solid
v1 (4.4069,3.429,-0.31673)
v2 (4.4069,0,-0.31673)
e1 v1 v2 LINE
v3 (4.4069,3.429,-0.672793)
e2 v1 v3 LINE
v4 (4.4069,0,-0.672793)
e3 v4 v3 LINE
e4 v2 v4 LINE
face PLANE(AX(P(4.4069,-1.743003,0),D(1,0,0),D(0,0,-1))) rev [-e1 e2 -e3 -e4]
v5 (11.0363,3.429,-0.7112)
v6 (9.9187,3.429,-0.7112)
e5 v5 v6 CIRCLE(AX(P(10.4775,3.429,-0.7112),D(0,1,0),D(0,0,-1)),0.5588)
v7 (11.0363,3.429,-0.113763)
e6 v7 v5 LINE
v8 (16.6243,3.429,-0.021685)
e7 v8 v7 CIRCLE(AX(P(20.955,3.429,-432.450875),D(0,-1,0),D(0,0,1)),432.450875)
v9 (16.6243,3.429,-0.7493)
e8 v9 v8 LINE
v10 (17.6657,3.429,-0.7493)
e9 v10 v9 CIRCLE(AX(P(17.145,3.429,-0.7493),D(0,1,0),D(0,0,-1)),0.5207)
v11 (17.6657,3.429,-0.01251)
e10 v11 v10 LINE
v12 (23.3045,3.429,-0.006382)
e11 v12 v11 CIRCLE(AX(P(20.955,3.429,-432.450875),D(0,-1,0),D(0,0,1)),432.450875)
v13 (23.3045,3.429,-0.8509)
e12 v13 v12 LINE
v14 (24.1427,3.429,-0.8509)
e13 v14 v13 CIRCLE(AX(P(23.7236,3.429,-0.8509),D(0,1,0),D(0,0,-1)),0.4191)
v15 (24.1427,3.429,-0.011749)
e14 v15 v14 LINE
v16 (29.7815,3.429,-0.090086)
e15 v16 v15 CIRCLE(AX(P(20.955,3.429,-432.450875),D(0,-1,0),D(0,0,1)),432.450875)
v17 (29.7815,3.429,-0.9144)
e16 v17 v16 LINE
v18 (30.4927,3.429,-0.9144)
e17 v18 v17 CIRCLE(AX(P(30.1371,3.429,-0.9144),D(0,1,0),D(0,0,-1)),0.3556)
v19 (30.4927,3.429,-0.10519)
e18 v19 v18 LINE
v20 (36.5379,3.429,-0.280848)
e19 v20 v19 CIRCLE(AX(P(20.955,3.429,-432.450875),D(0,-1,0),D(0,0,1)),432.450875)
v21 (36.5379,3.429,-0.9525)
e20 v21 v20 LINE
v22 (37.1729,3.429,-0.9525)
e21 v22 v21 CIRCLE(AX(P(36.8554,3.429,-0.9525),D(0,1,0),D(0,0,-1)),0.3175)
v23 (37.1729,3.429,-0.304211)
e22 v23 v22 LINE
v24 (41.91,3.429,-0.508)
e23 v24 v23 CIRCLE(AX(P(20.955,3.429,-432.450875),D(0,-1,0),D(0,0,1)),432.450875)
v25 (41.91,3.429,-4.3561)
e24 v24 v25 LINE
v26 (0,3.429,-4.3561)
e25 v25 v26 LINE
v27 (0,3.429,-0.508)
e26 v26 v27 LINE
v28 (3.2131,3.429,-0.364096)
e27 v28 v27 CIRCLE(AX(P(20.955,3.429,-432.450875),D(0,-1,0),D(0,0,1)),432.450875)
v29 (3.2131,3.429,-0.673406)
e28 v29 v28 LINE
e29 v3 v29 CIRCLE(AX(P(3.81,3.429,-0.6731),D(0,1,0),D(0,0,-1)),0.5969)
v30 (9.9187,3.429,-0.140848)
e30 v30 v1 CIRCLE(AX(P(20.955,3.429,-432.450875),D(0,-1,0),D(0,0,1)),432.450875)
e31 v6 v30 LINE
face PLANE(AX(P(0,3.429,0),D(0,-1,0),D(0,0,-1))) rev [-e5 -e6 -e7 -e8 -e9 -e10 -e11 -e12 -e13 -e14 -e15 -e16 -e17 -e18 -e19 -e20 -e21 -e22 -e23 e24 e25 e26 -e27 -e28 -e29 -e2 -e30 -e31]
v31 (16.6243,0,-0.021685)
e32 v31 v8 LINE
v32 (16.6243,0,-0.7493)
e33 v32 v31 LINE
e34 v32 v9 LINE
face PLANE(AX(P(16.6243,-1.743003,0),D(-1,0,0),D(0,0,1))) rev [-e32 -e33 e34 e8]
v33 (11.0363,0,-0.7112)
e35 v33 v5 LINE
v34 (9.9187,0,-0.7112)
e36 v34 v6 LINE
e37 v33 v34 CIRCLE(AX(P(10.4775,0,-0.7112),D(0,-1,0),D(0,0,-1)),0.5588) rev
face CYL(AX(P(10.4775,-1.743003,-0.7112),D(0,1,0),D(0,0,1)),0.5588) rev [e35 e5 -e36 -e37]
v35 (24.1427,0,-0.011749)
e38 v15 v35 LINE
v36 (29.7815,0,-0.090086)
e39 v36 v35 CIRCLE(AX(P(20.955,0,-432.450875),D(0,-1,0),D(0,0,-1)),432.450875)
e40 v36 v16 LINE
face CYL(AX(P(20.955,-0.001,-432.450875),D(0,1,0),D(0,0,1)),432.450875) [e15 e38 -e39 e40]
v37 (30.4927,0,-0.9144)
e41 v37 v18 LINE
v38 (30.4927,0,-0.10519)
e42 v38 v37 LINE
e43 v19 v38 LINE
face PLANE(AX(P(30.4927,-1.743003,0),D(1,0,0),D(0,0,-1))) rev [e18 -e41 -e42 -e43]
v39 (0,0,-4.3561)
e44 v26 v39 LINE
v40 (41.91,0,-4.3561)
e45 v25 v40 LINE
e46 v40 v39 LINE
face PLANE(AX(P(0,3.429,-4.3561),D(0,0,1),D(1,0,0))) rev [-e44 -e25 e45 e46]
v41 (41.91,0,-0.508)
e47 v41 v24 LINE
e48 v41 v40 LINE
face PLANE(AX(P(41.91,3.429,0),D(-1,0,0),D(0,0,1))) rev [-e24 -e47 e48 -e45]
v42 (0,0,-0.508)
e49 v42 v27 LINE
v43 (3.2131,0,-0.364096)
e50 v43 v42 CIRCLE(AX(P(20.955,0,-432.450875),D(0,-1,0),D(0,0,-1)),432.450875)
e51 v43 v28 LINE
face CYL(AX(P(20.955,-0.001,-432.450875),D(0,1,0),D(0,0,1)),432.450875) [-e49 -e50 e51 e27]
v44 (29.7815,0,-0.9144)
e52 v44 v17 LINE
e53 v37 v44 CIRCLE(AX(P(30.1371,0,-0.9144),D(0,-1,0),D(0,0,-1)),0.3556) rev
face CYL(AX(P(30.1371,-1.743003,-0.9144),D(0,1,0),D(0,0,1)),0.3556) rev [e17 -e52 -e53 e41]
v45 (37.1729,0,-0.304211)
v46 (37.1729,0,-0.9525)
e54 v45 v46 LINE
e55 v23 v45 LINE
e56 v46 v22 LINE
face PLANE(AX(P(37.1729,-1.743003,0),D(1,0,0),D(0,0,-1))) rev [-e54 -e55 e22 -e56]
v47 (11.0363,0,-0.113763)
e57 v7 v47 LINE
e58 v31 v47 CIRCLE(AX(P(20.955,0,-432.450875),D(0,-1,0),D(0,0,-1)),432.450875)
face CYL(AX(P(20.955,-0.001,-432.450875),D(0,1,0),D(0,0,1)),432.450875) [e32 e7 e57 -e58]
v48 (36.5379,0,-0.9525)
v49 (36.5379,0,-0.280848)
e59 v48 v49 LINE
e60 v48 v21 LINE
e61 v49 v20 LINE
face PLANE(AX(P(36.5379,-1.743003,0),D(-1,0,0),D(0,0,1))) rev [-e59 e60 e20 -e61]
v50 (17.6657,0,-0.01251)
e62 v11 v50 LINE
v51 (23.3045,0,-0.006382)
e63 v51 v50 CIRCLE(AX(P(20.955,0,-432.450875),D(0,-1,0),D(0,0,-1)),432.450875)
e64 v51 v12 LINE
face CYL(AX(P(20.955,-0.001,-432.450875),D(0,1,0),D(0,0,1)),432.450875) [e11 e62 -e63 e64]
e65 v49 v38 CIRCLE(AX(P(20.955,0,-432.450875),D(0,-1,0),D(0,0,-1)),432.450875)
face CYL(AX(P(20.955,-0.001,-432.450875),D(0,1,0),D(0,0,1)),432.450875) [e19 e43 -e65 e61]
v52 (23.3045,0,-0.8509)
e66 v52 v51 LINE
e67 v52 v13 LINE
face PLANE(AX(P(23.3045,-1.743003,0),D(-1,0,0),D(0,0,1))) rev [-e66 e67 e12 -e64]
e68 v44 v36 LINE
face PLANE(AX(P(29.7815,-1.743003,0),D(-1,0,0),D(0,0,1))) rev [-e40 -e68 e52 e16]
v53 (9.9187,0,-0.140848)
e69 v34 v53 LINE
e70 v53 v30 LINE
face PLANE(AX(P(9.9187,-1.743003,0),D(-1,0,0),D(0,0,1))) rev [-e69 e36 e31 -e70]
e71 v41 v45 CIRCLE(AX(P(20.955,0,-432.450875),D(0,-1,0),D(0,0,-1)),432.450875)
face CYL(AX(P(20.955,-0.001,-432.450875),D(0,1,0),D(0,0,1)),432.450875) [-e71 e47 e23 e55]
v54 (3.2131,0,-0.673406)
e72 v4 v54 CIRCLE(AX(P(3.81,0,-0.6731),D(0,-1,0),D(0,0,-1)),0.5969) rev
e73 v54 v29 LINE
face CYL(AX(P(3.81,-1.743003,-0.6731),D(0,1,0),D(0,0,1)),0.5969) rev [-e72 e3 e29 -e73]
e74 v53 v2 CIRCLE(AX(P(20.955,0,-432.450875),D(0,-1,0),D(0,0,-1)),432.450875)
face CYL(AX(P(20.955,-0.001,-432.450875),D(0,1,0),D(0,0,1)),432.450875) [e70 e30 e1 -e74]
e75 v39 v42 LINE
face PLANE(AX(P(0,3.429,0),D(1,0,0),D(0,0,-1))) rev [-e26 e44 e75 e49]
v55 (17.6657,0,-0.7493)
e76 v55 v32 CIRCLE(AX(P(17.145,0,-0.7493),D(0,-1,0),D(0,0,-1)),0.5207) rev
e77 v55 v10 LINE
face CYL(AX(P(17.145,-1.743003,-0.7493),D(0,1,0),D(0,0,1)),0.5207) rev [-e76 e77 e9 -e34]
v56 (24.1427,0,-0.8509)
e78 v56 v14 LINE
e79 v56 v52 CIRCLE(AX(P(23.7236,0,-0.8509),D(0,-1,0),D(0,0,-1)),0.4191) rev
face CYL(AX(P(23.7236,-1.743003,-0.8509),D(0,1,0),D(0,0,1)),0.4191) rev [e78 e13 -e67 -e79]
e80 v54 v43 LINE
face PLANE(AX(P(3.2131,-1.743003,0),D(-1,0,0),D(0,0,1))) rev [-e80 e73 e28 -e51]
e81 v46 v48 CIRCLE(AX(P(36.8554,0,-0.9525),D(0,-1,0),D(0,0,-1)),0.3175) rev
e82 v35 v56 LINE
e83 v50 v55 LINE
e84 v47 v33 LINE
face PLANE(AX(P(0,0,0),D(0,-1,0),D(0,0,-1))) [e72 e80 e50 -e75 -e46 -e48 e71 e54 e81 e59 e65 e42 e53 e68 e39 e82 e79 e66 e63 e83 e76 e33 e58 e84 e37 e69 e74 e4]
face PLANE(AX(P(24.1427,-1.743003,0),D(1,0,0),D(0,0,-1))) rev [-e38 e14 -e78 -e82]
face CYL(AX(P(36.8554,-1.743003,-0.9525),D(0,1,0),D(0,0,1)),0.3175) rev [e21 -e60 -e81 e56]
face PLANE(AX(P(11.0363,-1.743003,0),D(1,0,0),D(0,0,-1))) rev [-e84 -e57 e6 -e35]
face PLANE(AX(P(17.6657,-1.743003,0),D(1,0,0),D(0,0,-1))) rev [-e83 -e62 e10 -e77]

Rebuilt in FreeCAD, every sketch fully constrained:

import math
import FreeCAD as App
import Part
import Sketcher
from FreeCAD import Vector
Q = App.Units.Quantity

doc = App.newDocument("Part")
body = doc.addObject("PartDesign::Body", "Body")

# Sketch on XZ plane
sketch1 = body.newObject("Sketcher::SketchObject", "Sketch")
sketch1.AttachmentSupport = (doc.getObject("XZ_Plane"), [""])
sketch1.MapMode = "FlatFace"
sketch1.addGeometry(Part.LineSegment(Vector(0, -4.4, 0), Vector(0, 0, 0)), False)
sketch1.addGeometry(Part.LineSegment(Vector(0, 0, 0), Vector(41.9, 0, 0)), False)
sketch1.addGeometry(Part.LineSegment(Vector(41.9, 0, 0), Vector(41.9, -4.4, 0)), False)
sketch1.addGeometry(Part.LineSegment(Vector(41.9, -4.4, 0), Vector(0, -4.4, 0)), False)
sketch1.addConstraint(Sketcher.Constraint("Coincident", 0, 2, 1, 1))
sketch1.addConstraint(Sketcher.Constraint("Coincident", 1, 2, 2, 1))
sketch1.addConstraint(Sketcher.Constraint("Coincident", 2, 2, 3, 1))
sketch1.addConstraint(Sketcher.Constraint("Coincident", 3, 2, 0, 1))
sketch1.addConstraint(Sketcher.Constraint("Vertical", 0))
sketch1.addConstraint(Sketcher.Constraint("Horizontal", 1))
sketch1.addConstraint(Sketcher.Constraint("Vertical", 2))
sketch1.addConstraint(Sketcher.Constraint("Horizontal", 3))
sketch1.addConstraint(Sketcher.Constraint("Coincident", 0, 2, -1, 1))
sketch1.addConstraint(Sketcher.Constraint("DistanceX", 1, 1, 1, 2, Q("1.65 in")))
sketch1.addConstraint(Sketcher.Constraint("DistanceY", 0, 1, 0, 2, Q("0.1715 in")))
pad1 = body.newObject("PartDesign::Pad", "Pad")
pad1.Profile = sketch1
pad1.Length = Q("0.135 in")
pad1.Reversed = True

# Sketch on XZ plane
sketch2 = body.newObject("Sketcher::SketchObject", "Sketch001")
sketch2.AttachmentSupport = (doc.getObject("XZ_Plane"), [""])
sketch2.MapMode = "FlatFace"
sketch2.AttachmentOffset = App.Placement(Vector(0, 0, -0.135 * 25.4), App.Rotation())
sketch2.addGeometry(Part.LineSegment(Vector(3.21, -0.67, 0), Vector(3.21, 0, 0)), False)
sketch2.addGeometry(Part.LineSegment(Vector(3.21, 0, 0), Vector(4.41, 0, 0)), False)
sketch2.addGeometry(Part.LineSegment(Vector(4.41, 0, 0), Vector(4.41, -0.67, 0)), False)
sketch2.addGeometry(Part.ArcOfCircle(Part.Circle(Vector(3.81, -0.67, 0), Vector(0, 0, 1), 0.6), math.radians(-180), math.radians(0)), False)
sketch2.addGeometry(Part.LineSegment(Vector(9.92, -0.71, 0), Vector(9.92, 0, 0)), False)
sketch2.addGeometry(Part.LineSegment(Vector(9.92, 0, 0), Vector(11.04, 0, 0)), False)
sketch2.addGeometry(Part.LineSegment(Vector(11.04, 0, 0), Vector(11.04, -0.71, 0)), False)
sketch2.addGeometry(Part.ArcOfCircle(Part.Circle(Vector(10.48, -0.71, 0), Vector(0, 0, 1), 0.56), math.radians(180), math.radians(360)), False)
sketch2.addGeometry(Part.LineSegment(Vector(16.62, -0.75, 0), Vector(16.62, 0, 0)), False)
sketch2.addGeometry(Part.LineSegment(Vector(16.62, 0, 0), Vector(17.67, 0, 0)), False)
sketch2.addGeometry(Part.LineSegment(Vector(17.67, 0, 0), Vector(17.67, -0.75, 0)), False)
sketch2.addGeometry(Part.ArcOfCircle(Part.Circle(Vector(17.15, -0.75, 0), Vector(0, 0, 1), 0.52), math.radians(180), math.radians(360)), False)
sketch2.addGeometry(Part.LineSegment(Vector(23.3, -0.85, 0), Vector(23.3, 0, 0)), False)
sketch2.addGeometry(Part.LineSegment(Vector(23.3, 0, 0), Vector(24.14, 0, 0)), False)
sketch2.addGeometry(Part.LineSegment(Vector(24.14, 0, 0), Vector(24.14, -0.85, 0)), False)
sketch2.addGeometry(Part.ArcOfCircle(Part.Circle(Vector(23.72, -0.85, 0), Vector(0, 0, 1), 0.42), math.radians(180), math.radians(360)), False)
sketch2.addGeometry(Part.LineSegment(Vector(29.78, -0.91, 0), Vector(29.78, 0, 0)), False)
sketch2.addGeometry(Part.LineSegment(Vector(29.78, 0, 0), Vector(30.49, 0, 0)), False)
sketch2.addGeometry(Part.LineSegment(Vector(30.49, 0, 0), Vector(30.49, -0.91, 0)), False)
sketch2.addGeometry(Part.ArcOfCircle(Part.Circle(Vector(30.14, -0.91, 0), Vector(0, 0, 1), 0.36), math.radians(180), math.radians(360)), False)
sketch2.addGeometry(Part.LineSegment(Vector(36.54, -0.95, 0), Vector(36.54, 0, 0)), False)
sketch2.addGeometry(Part.LineSegment(Vector(36.54, 0, 0), Vector(37.17, 0, 0)), False)
sketch2.addGeometry(Part.LineSegment(Vector(37.17, 0, 0), Vector(37.17, -0.95, 0)), False)
sketch2.addGeometry(Part.ArcOfCircle(Part.Circle(Vector(36.86, -0.95, 0), Vector(0, 0, 1), 0.32), math.radians(180), math.radians(360)), False)
sketch2.addConstraint(Sketcher.Constraint("Coincident", 0, 2, 1, 1))
sketch2.addConstraint(Sketcher.Constraint("Coincident", 1, 2, 2, 1))
sketch2.addConstraint(Sketcher.Constraint("Coincident", 2, 2, 3, 2))
sketch2.addConstraint(Sketcher.Constraint("Coincident", 3, 1, 0, 1))
sketch2.addConstraint(Sketcher.Constraint("Coincident", 4, 2, 5, 1))
sketch2.addConstraint(Sketcher.Constraint("Coincident", 5, 2, 6, 1))
sketch2.addConstraint(Sketcher.Constraint("Tangent", 6, 2, 7, 2))
sketch2.addConstraint(Sketcher.Constraint("Tangent", 7, 1, 4, 1))
sketch2.addConstraint(Sketcher.Constraint("Coincident", 8, 2, 9, 1))
sketch2.addConstraint(Sketcher.Constraint("Coincident", 9, 2, 10, 1))
sketch2.addConstraint(Sketcher.Constraint("Tangent", 10, 2, 11, 2))
sketch2.addConstraint(Sketcher.Constraint("Tangent", 11, 1, 8, 1))
sketch2.addConstraint(Sketcher.Constraint("Coincident", 12, 2, 13, 1))
sketch2.addConstraint(Sketcher.Constraint("Coincident", 13, 2, 14, 1))
sketch2.addConstraint(Sketcher.Constraint("Tangent", 14, 2, 15, 2))
sketch2.addConstraint(Sketcher.Constraint("Tangent", 15, 1, 12, 1))
sketch2.addConstraint(Sketcher.Constraint("Coincident", 16, 2, 17, 1))
sketch2.addConstraint(Sketcher.Constraint("Coincident", 17, 2, 18, 1))
sketch2.addConstraint(Sketcher.Constraint("Tangent", 18, 2, 19, 2))
sketch2.addConstraint(Sketcher.Constraint("Tangent", 19, 1, 16, 1))
sketch2.addConstraint(Sketcher.Constraint("Coincident", 20, 2, 21, 1))
sketch2.addConstraint(Sketcher.Constraint("Coincident", 21, 2, 22, 1))
sketch2.addConstraint(Sketcher.Constraint("Tangent", 22, 2, 23, 2))
sketch2.addConstraint(Sketcher.Constraint("Tangent", 23, 1, 20, 1))
sketch2.addConstraint(Sketcher.Constraint("Vertical", 0))
sketch2.addConstraint(Sketcher.Constraint("Horizontal", 1))
sketch2.addConstraint(Sketcher.Constraint("Vertical", 2))
sketch2.addConstraint(Sketcher.Constraint("Vertical", 4))
sketch2.addConstraint(Sketcher.Constraint("Horizontal", 5))
sketch2.addConstraint(Sketcher.Constraint("Vertical", 6))
sketch2.addConstraint(Sketcher.Constraint("Vertical", 8))
sketch2.addConstraint(Sketcher.Constraint("Horizontal", 9))
sketch2.addConstraint(Sketcher.Constraint("Vertical", 10))
sketch2.addConstraint(Sketcher.Constraint("Vertical", 12))
sketch2.addConstraint(Sketcher.Constraint("Horizontal", 13))
sketch2.addConstraint(Sketcher.Constraint("Vertical", 14))
sketch2.addConstraint(Sketcher.Constraint("Vertical", 16))
sketch2.addConstraint(Sketcher.Constraint("Horizontal", 17))
sketch2.addConstraint(Sketcher.Constraint("Vertical", 18))
sketch2.addConstraint(Sketcher.Constraint("Vertical", 20))
sketch2.addConstraint(Sketcher.Constraint("Horizontal", 21))
sketch2.addConstraint(Sketcher.Constraint("Vertical", 22))
sketch2.addConstraint(Sketcher.Constraint("PointOnObject", 0, 2, -1))
sketch2.addConstraint(Sketcher.Constraint("PointOnObject", 4, 2, -1))
sketch2.addConstraint(Sketcher.Constraint("PointOnObject", 8, 2, -1))
sketch2.addConstraint(Sketcher.Constraint("PointOnObject", 12, 2, -1))
sketch2.addConstraint(Sketcher.Constraint("PointOnObject", 16, 2, -1))
sketch2.addConstraint(Sketcher.Constraint("PointOnObject", 20, 2, -1))
sketch2.addConstraint(Sketcher.Constraint("Equal", 17, 4))
sketch2.addConstraint(Sketcher.Constraint("Radius", 7, Q("0.022 in")))
sketch2.addConstraint(Sketcher.Constraint("Radius", 19, Q("0.014 in")))
sketch2.addConstraint(Sketcher.Constraint("Radius", 3, Q("0.0235 in")))
sketch2.addConstraint(Sketcher.Constraint("Radius", 11, Q("0.0205 in")))
sketch2.addConstraint(Sketcher.Constraint("Radius", 15, Q("0.0165 in")))
sketch2.addConstraint(Sketcher.Constraint("Radius", 23, Q("0.0125 in")))
sketch2.addConstraint(Sketcher.Constraint("DistanceY", 16, 1, 16, 2, Q("0.036 in")))
sketch2.addConstraint(Sketcher.Constraint("DistanceX", -1, 1, 3, 3, Q("0.15 in")))
sketch2.addConstraint(Sketcher.Constraint("DistanceX", 0, 2, 19, 3, Q("1.06 in")))
sketch2.addConstraint(Sketcher.Constraint("DistanceX", 5, 2, 8, 2, Q("0.22 in")))
sketch2.addConstraint(Sketcher.Constraint("DistanceX", 13, 2, 17, 2, Q("0.25 in")))
sketch2.addConstraint(Sketcher.Constraint("DistanceY", 8, 1, 8, 2, Q("0.0295 in")))
sketch2.addConstraint(Sketcher.Constraint("DistanceY", 12, 1, 12, 2, Q("0.0335 in")))
sketch2.addConstraint(Sketcher.Constraint("DistanceY", 20, 1, 20, 2, Q("0.0375 in")))
sketch2.addConstraint(Sketcher.Constraint("DistanceX", -1, 1, 11, 3, Q("0.675 in")))
sketch2.addConstraint(Sketcher.Constraint("DistanceX", -1, 1, 23, 3, Q("1.451 in")))
sketch2.addConstraint(Sketcher.Constraint("DistanceY", 11, 3, 3, 3, Q("0.003 in")))
sketch2.addConstraint(Sketcher.Constraint("DistanceY", 0, 1, 0, 2, Q("0.673406 mm")))
sketch2.addConstraint(Sketcher.Constraint("DistanceY", 2, 2, 2, 1, Q("0.672793 mm")))
pocket1 = body.newObject("PartDesign::Pocket", "Pocket")
pocket1.Profile = sketch2
pocket1.Length = Q("0.135 in")
pocket1.Reversed = True

# Sketch on XZ plane
sketch3 = body.newObject("Sketcher::SketchObject", "Sketch002")
sketch3.AttachmentSupport = (doc.getObject("XZ_Plane"), [""])
sketch3.MapMode = "FlatFace"
sketch3.addGeometry(Part.LineSegment(Vector(0, -0.5, 0), Vector(0, 0.5, 0)), False)
sketch3.addGeometry(Part.LineSegment(Vector(0, 0.5, 0), Vector(41.9, 0.5, 0)), False)
sketch3.addGeometry(Part.LineSegment(Vector(41.9, 0.5, 0), Vector(41.9, -0.5, 0)), False)
sketch3.addGeometry(Part.ArcOfCircle(Part.Circle(Vector(21, -432.5, 0), Vector(0, 0, 1), 432.5), math.radians(87.22), math.radians(92.78)), False)
sketch3.addConstraint(Sketcher.Constraint("Coincident", 0, 2, 1, 1))
sketch3.addConstraint(Sketcher.Constraint("Coincident", 1, 2, 2, 1))
sketch3.addConstraint(Sketcher.Constraint("Coincident", 2, 2, 3, 1))
sketch3.addConstraint(Sketcher.Constraint("Coincident", 3, 2, 0, 1))
sketch3.addConstraint(Sketcher.Constraint("Vertical", 0))
sketch3.addConstraint(Sketcher.Constraint("Horizontal", 1))
sketch3.addConstraint(Sketcher.Constraint("Vertical", 2))
sketch3.addConstraint(Sketcher.Constraint("PointOnObject", 0, 2, -2))
sketch3.addConstraint(Sketcher.Constraint("Horizontal", 2, 2, 3, 2))
sketch3.addConstraint(Sketcher.Constraint("DistanceX", 1, 1, 1, 2, Q("1.65 in")))
sketch3.addConstraint(Sketcher.Constraint("DistanceY", 2, 2, -1, 1, Q("0.02 in")))
sketch3.addConstraint(Sketcher.Constraint("Radius", 3, Q("432.450875 mm")))
sketch3.addConstraint(Sketcher.Constraint("DistanceY", 0, 1, 0, 2, Q("1.046643 mm")))
pocket2 = body.newObject("PartDesign::Pocket", "Pocket001")
pocket2.Profile = sketch3
pocket2.Length = Q("0.135 in")

doc.recompute()
